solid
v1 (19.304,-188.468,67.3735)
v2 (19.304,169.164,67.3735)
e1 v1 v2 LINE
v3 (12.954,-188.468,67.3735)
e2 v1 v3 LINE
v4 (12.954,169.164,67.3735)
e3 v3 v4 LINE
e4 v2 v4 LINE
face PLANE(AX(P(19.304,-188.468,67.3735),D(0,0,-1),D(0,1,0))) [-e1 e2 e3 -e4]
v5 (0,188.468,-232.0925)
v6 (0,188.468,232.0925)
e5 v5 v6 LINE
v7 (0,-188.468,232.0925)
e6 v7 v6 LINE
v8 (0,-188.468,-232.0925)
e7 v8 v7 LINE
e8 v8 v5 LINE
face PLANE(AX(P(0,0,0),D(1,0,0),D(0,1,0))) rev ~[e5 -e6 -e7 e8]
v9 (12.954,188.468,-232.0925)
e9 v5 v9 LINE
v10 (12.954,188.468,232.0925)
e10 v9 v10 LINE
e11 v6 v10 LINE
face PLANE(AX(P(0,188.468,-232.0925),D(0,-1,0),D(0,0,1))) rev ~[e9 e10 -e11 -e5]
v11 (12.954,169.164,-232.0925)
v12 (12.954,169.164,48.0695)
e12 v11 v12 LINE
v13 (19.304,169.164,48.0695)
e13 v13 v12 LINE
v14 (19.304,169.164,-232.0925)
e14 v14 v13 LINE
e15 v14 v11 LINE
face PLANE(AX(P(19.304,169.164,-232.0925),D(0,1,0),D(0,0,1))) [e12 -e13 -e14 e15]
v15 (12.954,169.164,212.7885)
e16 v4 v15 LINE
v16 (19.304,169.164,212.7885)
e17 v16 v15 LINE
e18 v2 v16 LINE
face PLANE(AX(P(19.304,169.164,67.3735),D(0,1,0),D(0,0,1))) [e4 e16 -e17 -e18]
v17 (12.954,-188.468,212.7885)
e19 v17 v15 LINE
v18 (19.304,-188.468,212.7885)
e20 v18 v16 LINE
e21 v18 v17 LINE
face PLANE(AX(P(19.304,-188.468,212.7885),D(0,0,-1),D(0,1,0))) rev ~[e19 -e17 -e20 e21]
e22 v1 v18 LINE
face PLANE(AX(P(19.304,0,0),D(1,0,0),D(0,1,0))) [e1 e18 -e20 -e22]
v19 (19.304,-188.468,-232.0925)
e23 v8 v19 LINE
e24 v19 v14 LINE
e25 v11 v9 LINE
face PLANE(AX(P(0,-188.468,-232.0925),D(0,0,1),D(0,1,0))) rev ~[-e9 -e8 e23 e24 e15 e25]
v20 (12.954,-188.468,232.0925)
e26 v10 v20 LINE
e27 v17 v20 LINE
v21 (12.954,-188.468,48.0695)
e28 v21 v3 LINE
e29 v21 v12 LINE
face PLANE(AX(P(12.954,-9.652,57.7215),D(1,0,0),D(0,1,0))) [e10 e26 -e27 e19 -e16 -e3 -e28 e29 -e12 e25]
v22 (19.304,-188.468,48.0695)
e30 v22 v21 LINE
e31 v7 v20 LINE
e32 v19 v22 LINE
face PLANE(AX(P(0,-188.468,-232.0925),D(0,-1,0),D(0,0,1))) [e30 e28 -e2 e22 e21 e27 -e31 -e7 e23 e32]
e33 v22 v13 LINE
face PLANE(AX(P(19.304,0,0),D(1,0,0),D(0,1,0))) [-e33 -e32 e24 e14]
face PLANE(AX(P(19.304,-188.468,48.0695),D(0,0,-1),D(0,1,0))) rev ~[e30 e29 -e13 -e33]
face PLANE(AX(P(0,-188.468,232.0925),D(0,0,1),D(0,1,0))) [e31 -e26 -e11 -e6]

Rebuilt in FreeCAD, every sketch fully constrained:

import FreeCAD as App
import Part
import Sketcher

V = App.Vector
Q = App.Units.Quantity


def add_polygon(sketch, points):
    """Adds a closed chain of lines whose ends are joined by coincident constraints."""
    first, n = sketch.GeometryCount, len(points)
    for a, b in zip(points, points[1:] + points[:1]):
        sketch.addGeometry(Part.LineSegment(App.Vector(*a, 0), App.Vector(*b, 0)), False)
    for i in range(n):
        sketch.addConstraint(Sketcher.Constraint("Coincident", first + i, 2, first + (i + 1) % n, 1))

doc = App.newDocument("Part")
body = doc.addObject("PartDesign::Body", "Body")

sketch1 = body.newObject("Sketcher::SketchObject", "Sketch")
sketch1.AttachmentSupport = (doc.getObject("YZ_Plane"), [""])
sketch1.MapMode = "FlatFace"
add_polygon(sketch1, [(-188, 232), (-188, -232), (188, -232), (188, 232)])
sketch1.addConstraint(Sketcher.Constraint("Vertical", 0))
sketch1.addConstraint(Sketcher.Constraint("Horizontal", 1))
sketch1.addConstraint(Sketcher.Constraint("Vertical", 2))
sketch1.addConstraint(Sketcher.Constraint("Horizontal", 3))
sketch1.addConstraint(Sketcher.Constraint("Symmetric", 0, 2, 2, 2, -1, 1))
sketch1.addConstraint(Sketcher.Constraint("DistanceX", 1, 1, 1, 2, Q("14.84 in")))
sketch1.addConstraint(Sketcher.Constraint("DistanceY", 0, 2, 0, 1, Q("18.275 in")))
pad1 = body.newObject("PartDesign::Pad", "Pad")
pad1.Profile = sketch1
pad1.Length = Q("0.76 in")

sketch2 = body.newObject("Sketcher::SketchObject", "Sketch001")
sketch2.AttachmentSupport = (doc.getObject("YZ_Plane"), [""])
sketch2.MapMode = "FlatFace"
sketch2.AttachmentOffset = App.Placement(V(0, 0, 0.76 * 25.4), App.Rotation())
add_polygon(sketch2, [(-188, 67), (-188, 48), (169, 48), (169, -232), (188, -232), (188, 232), (-188, 232), (-188, 213), (169, 213), (169, 67)])
sketch2.addConstraint(Sketcher.Constraint("Vertical", 0))
sketch2.addConstraint(Sketcher.Constraint("Horizontal", 1))
sketch2.addConstraint(Sketcher.Constraint("Vertical", 2))
sketch2.addConstraint(Sketcher.Constraint("Horizontal", 3))
sketch2.addConstraint(Sketcher.Constraint("Vertical", 4))
sketch2.addConstraint(Sketcher.Constraint("Horizontal", 5))
sketch2.addConstraint(Sketcher.Constraint("Vertical", 6))
sketch2.addConstraint(Sketcher.Constraint("Horizontal", 7))
sketch2.addConstraint(Sketcher.Constraint("Vertical", 8))
sketch2.addConstraint(Sketcher.Constraint("Horizontal", 9))
sketch2.addConstraint(Sketcher.Constraint("Symmetric", 3, 2, 5, 2, -1, 1))
sketch2.addConstraint(Sketcher.Constraint("Vertical", 0, 2, 5, 2))
sketch2.addConstraint(Sketcher.Constraint("Vertical", 2, 2, 7, 2))
sketch2.addConstraint(Sketcher.Constraint("Equal", 3, 0))
sketch2.addConstraint(Sketcher.Constraint("Equal", 0, 6))
sketch2.addConstraint(Sketcher.Constraint("DistanceX", 1, 1, 1, 2, Q("14.08 in")))
sketch2.addConstraint(Sketcher.Constraint("DistanceX", 3, 1, 3, 2, Q("0.76 in")))
sketch2.addConstraint(Sketcher.Constraint("DistanceY", 2, 2, 2, 1, Q("11.03 in")))
sketch2.addConstraint(Sketcher.Constraint("DistanceY", 4, 1, 4, 2, Q("18.275 in")))
pocket1 = body.newObject("PartDesign::Pocket", "Pocket")
pocket1.Profile = sketch2
pocket1.Length = Q("0.25 in")

doc.recompute()
